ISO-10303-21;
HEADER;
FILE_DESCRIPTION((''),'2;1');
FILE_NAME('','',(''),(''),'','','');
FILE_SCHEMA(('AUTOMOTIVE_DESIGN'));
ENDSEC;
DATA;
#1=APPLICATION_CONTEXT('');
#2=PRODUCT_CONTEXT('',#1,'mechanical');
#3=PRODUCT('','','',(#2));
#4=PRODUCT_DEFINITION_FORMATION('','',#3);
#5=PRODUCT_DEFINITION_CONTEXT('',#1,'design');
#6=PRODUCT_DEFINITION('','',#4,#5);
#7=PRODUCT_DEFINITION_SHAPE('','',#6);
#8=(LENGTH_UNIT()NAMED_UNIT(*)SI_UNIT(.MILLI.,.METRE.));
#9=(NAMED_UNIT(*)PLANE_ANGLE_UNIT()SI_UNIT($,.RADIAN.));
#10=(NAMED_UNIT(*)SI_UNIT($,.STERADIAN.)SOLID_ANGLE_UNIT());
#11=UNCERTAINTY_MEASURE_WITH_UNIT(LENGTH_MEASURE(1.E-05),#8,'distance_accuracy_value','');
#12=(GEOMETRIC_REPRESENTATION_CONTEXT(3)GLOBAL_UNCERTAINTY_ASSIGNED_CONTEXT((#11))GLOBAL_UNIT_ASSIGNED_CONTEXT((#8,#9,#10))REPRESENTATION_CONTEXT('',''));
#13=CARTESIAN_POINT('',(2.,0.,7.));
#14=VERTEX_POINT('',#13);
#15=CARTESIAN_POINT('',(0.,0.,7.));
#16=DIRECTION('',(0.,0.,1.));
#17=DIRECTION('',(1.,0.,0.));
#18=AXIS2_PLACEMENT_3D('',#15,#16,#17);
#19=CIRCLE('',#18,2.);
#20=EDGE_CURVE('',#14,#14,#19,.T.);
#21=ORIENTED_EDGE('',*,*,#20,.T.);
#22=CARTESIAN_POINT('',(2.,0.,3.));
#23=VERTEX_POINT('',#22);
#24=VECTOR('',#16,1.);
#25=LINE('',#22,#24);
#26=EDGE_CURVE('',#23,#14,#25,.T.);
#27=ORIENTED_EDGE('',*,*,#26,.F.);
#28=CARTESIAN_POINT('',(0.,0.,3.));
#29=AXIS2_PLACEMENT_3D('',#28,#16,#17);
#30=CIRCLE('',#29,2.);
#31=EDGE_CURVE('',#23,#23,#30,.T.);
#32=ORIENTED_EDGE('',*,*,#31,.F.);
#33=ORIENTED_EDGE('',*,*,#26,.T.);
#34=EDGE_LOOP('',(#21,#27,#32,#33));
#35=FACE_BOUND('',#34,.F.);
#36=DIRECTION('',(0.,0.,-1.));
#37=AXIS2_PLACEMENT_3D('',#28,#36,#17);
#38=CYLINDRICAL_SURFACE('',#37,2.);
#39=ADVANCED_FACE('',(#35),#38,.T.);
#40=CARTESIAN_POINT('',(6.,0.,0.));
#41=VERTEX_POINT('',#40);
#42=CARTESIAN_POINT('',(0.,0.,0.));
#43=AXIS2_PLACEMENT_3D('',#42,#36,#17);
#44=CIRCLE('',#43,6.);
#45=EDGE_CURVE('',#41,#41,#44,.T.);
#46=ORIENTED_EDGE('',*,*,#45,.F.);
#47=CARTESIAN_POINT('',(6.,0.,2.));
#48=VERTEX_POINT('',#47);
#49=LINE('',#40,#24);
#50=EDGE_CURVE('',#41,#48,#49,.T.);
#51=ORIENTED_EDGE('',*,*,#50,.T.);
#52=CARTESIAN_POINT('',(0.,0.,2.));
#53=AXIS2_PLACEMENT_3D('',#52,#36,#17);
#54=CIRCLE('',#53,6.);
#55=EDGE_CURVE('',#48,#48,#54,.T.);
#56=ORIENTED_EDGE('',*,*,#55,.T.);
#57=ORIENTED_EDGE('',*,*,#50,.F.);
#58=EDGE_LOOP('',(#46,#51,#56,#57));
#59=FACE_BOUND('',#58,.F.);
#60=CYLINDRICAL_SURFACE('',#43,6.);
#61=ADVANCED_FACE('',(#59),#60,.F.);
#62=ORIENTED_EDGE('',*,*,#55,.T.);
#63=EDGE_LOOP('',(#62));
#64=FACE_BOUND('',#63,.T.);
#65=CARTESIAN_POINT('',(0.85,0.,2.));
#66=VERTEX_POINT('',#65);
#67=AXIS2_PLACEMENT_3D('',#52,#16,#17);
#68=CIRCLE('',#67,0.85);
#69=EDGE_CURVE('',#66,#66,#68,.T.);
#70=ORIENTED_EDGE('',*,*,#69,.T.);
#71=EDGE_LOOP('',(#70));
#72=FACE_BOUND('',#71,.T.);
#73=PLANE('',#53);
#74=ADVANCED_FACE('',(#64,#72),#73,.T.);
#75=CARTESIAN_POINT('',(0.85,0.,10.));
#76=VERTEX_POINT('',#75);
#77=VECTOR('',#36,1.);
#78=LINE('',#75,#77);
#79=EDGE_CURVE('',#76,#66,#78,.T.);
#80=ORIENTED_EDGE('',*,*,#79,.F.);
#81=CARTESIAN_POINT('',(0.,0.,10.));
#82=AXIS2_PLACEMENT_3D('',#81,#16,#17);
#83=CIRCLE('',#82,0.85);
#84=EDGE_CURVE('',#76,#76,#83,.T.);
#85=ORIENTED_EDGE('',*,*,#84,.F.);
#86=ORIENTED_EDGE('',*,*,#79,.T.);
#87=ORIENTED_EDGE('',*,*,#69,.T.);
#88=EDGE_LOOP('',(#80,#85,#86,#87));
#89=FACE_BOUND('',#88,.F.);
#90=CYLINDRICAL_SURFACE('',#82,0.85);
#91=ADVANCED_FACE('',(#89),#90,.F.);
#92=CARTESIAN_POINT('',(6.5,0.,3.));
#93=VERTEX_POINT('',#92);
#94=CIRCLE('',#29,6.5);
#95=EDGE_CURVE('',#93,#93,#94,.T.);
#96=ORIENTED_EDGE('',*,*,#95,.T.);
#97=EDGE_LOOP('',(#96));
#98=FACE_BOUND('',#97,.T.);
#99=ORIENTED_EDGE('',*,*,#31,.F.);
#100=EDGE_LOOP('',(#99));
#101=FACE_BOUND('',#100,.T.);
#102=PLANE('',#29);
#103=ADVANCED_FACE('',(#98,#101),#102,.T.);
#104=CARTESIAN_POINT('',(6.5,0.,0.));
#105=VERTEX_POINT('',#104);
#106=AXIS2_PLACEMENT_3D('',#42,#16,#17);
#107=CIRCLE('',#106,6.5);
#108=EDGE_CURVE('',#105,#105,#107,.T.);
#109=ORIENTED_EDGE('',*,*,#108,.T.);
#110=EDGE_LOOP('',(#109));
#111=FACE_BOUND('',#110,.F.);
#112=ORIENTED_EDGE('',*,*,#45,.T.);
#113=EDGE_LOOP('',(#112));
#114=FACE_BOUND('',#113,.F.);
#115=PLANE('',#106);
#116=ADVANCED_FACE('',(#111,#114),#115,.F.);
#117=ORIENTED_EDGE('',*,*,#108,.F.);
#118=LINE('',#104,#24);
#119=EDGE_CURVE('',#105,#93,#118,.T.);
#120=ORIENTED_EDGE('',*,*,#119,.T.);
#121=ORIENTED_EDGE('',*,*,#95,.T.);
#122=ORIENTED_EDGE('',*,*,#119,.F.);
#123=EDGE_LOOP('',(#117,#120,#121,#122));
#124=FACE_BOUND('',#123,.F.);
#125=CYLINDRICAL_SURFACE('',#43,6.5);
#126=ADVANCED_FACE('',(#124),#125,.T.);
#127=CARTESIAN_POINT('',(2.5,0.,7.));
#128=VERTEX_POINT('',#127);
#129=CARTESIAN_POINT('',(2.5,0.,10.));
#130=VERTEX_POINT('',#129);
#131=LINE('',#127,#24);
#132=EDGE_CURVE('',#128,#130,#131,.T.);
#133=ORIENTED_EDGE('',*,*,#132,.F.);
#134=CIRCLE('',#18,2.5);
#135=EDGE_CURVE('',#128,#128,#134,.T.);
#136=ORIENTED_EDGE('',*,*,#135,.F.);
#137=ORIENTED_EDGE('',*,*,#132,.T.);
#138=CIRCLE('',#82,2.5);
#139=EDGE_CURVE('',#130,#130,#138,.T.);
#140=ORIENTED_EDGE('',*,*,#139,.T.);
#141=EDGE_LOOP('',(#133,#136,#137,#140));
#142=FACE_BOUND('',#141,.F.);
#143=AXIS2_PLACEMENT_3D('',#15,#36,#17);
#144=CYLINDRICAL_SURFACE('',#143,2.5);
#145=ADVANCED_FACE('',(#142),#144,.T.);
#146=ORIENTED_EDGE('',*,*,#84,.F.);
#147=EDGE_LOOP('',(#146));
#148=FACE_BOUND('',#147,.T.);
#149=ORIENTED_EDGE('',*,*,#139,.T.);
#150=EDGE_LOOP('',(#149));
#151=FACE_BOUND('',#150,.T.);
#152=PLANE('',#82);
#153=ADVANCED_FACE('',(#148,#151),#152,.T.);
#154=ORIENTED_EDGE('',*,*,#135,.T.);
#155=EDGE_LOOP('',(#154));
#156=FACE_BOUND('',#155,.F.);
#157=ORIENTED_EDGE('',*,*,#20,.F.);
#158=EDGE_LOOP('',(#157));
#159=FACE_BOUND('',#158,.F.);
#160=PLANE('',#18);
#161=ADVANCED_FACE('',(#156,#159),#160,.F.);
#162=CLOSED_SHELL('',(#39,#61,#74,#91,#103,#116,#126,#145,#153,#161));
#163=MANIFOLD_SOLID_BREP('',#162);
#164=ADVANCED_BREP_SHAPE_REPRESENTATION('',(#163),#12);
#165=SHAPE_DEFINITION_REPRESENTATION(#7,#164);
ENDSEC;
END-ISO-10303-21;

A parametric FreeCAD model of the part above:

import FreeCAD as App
import Part
import Sketcher

V = App.Vector
Q = App.Units.Quantity

doc = App.newDocument("Part")
body = doc.addObject("PartDesign::Body", "Body")

sketch1 = body.newObject("Sketcher::SketchObject", "Sketch")
sketch1.AttachmentSupport = (doc.getObject("XY_Plane"), [""])
sketch1.MapMode = "FlatFace"
sketch1.addGeometry(Part.Circle(V(0, 0, 0), V(0, 0, 1), 6.5), False)
sketch1.addConstraint([
    Sketcher.Constraint("Coincident", 0, 3, -1, 1),
    Sketcher.Constraint("Diameter", 0, Q("13 mm")),
])
pad1 = body.newObject("PartDesign::Pad", "Pad")
pad1.Profile = sketch1
pad1.Length = 3

sketch2 = body.newObject("Sketcher::SketchObject", "Sketch001")
sketch2.AttachmentSupport = (doc.getObject("XY_Plane"), [""])
sketch2.MapMode = "FlatFace"
sketch2.AttachmentOffset = App.Placement(V(0, 0, 3), App.Rotation())
sketch2.addGeometry(Part.Circle(V(0, 0, 0), V(0, 0, 1), 2), False)
sketch2.addConstraint([
    Sketcher.Constraint("Coincident", 0, 3, -1, 1),
    Sketcher.Constraint("Diameter", 0, Q("4 mm")),
])
pad2 = body.newObject("PartDesign::Pad", "Pad001")
pad2.Profile = sketch2
pad2.Length = 4

sketch3 = body.newObject("Sketcher::SketchObject", "Sketch002")
sketch3.AttachmentSupport = (doc.getObject("XY_Plane"), [""])
sketch3.MapMode = "FlatFace"
sketch3.AttachmentOffset = App.Placement(V(0, 0, 7), App.Rotation())
sketch3.addGeometry(Part.Circle(V(0, 0, 0), V(0, 0, 1), 2.5), False)
sketch3.addConstraint([
    Sketcher.Constraint("Coincident", 0, 3, -1, 1),
    Sketcher.Constraint("Diameter", 0, Q("5 mm")),
])
pad3 = body.newObject("PartDesign::Pad", "Pad002")
pad3.Profile = sketch3
pad3.Length = 3

sketch4 = body.newObject("Sketcher::SketchObject", "Sketch003")
sketch4.AttachmentSupport = (doc.getObject("XY_Plane"), [""])
sketch4.MapMode = "FlatFace"
sketch4.addGeometry(Part.Circle(V(0, 0, 0), V(0, 0, 1), 6), False)
sketch4.addConstraint([
    Sketcher.Constraint("Coincident", 0, 3, -1, 1),
    Sketcher.Constraint("Diameter", 0, Q("12 mm")),
])
pocket1 = body.newObject("PartDesign::Pocket", "Pocket")
pocket1.Profile = sketch4
pocket1.Length = 2
pocket1.Reversed = True

sketch5 = body.newObject("Sketcher::SketchObject", "Sketch004")
sketch5.AttachmentSupport = (doc.getObject("XY_Plane"), [""])
sketch5.MapMode = "FlatFace"
sketch5.AttachmentOffset = App.Placement(V(0, 0, 10), App.Rotation())
sketch5.addGeometry(Part.Circle(V(0, 0, 0), V(0, 0, 1), 0.85), False)
sketch5.addConstraint([
    Sketcher.Constraint("Coincident", 0, 3, -1, 1),
    Sketcher.Constraint("Diameter", 0, Q("1.7 mm")),
])
pocket2 = body.newObject("PartDesign::Pocket", "Pocket001")
pocket2.Profile = sketch5
pocket2.Type = "ThroughAll"

doc.recompute()
